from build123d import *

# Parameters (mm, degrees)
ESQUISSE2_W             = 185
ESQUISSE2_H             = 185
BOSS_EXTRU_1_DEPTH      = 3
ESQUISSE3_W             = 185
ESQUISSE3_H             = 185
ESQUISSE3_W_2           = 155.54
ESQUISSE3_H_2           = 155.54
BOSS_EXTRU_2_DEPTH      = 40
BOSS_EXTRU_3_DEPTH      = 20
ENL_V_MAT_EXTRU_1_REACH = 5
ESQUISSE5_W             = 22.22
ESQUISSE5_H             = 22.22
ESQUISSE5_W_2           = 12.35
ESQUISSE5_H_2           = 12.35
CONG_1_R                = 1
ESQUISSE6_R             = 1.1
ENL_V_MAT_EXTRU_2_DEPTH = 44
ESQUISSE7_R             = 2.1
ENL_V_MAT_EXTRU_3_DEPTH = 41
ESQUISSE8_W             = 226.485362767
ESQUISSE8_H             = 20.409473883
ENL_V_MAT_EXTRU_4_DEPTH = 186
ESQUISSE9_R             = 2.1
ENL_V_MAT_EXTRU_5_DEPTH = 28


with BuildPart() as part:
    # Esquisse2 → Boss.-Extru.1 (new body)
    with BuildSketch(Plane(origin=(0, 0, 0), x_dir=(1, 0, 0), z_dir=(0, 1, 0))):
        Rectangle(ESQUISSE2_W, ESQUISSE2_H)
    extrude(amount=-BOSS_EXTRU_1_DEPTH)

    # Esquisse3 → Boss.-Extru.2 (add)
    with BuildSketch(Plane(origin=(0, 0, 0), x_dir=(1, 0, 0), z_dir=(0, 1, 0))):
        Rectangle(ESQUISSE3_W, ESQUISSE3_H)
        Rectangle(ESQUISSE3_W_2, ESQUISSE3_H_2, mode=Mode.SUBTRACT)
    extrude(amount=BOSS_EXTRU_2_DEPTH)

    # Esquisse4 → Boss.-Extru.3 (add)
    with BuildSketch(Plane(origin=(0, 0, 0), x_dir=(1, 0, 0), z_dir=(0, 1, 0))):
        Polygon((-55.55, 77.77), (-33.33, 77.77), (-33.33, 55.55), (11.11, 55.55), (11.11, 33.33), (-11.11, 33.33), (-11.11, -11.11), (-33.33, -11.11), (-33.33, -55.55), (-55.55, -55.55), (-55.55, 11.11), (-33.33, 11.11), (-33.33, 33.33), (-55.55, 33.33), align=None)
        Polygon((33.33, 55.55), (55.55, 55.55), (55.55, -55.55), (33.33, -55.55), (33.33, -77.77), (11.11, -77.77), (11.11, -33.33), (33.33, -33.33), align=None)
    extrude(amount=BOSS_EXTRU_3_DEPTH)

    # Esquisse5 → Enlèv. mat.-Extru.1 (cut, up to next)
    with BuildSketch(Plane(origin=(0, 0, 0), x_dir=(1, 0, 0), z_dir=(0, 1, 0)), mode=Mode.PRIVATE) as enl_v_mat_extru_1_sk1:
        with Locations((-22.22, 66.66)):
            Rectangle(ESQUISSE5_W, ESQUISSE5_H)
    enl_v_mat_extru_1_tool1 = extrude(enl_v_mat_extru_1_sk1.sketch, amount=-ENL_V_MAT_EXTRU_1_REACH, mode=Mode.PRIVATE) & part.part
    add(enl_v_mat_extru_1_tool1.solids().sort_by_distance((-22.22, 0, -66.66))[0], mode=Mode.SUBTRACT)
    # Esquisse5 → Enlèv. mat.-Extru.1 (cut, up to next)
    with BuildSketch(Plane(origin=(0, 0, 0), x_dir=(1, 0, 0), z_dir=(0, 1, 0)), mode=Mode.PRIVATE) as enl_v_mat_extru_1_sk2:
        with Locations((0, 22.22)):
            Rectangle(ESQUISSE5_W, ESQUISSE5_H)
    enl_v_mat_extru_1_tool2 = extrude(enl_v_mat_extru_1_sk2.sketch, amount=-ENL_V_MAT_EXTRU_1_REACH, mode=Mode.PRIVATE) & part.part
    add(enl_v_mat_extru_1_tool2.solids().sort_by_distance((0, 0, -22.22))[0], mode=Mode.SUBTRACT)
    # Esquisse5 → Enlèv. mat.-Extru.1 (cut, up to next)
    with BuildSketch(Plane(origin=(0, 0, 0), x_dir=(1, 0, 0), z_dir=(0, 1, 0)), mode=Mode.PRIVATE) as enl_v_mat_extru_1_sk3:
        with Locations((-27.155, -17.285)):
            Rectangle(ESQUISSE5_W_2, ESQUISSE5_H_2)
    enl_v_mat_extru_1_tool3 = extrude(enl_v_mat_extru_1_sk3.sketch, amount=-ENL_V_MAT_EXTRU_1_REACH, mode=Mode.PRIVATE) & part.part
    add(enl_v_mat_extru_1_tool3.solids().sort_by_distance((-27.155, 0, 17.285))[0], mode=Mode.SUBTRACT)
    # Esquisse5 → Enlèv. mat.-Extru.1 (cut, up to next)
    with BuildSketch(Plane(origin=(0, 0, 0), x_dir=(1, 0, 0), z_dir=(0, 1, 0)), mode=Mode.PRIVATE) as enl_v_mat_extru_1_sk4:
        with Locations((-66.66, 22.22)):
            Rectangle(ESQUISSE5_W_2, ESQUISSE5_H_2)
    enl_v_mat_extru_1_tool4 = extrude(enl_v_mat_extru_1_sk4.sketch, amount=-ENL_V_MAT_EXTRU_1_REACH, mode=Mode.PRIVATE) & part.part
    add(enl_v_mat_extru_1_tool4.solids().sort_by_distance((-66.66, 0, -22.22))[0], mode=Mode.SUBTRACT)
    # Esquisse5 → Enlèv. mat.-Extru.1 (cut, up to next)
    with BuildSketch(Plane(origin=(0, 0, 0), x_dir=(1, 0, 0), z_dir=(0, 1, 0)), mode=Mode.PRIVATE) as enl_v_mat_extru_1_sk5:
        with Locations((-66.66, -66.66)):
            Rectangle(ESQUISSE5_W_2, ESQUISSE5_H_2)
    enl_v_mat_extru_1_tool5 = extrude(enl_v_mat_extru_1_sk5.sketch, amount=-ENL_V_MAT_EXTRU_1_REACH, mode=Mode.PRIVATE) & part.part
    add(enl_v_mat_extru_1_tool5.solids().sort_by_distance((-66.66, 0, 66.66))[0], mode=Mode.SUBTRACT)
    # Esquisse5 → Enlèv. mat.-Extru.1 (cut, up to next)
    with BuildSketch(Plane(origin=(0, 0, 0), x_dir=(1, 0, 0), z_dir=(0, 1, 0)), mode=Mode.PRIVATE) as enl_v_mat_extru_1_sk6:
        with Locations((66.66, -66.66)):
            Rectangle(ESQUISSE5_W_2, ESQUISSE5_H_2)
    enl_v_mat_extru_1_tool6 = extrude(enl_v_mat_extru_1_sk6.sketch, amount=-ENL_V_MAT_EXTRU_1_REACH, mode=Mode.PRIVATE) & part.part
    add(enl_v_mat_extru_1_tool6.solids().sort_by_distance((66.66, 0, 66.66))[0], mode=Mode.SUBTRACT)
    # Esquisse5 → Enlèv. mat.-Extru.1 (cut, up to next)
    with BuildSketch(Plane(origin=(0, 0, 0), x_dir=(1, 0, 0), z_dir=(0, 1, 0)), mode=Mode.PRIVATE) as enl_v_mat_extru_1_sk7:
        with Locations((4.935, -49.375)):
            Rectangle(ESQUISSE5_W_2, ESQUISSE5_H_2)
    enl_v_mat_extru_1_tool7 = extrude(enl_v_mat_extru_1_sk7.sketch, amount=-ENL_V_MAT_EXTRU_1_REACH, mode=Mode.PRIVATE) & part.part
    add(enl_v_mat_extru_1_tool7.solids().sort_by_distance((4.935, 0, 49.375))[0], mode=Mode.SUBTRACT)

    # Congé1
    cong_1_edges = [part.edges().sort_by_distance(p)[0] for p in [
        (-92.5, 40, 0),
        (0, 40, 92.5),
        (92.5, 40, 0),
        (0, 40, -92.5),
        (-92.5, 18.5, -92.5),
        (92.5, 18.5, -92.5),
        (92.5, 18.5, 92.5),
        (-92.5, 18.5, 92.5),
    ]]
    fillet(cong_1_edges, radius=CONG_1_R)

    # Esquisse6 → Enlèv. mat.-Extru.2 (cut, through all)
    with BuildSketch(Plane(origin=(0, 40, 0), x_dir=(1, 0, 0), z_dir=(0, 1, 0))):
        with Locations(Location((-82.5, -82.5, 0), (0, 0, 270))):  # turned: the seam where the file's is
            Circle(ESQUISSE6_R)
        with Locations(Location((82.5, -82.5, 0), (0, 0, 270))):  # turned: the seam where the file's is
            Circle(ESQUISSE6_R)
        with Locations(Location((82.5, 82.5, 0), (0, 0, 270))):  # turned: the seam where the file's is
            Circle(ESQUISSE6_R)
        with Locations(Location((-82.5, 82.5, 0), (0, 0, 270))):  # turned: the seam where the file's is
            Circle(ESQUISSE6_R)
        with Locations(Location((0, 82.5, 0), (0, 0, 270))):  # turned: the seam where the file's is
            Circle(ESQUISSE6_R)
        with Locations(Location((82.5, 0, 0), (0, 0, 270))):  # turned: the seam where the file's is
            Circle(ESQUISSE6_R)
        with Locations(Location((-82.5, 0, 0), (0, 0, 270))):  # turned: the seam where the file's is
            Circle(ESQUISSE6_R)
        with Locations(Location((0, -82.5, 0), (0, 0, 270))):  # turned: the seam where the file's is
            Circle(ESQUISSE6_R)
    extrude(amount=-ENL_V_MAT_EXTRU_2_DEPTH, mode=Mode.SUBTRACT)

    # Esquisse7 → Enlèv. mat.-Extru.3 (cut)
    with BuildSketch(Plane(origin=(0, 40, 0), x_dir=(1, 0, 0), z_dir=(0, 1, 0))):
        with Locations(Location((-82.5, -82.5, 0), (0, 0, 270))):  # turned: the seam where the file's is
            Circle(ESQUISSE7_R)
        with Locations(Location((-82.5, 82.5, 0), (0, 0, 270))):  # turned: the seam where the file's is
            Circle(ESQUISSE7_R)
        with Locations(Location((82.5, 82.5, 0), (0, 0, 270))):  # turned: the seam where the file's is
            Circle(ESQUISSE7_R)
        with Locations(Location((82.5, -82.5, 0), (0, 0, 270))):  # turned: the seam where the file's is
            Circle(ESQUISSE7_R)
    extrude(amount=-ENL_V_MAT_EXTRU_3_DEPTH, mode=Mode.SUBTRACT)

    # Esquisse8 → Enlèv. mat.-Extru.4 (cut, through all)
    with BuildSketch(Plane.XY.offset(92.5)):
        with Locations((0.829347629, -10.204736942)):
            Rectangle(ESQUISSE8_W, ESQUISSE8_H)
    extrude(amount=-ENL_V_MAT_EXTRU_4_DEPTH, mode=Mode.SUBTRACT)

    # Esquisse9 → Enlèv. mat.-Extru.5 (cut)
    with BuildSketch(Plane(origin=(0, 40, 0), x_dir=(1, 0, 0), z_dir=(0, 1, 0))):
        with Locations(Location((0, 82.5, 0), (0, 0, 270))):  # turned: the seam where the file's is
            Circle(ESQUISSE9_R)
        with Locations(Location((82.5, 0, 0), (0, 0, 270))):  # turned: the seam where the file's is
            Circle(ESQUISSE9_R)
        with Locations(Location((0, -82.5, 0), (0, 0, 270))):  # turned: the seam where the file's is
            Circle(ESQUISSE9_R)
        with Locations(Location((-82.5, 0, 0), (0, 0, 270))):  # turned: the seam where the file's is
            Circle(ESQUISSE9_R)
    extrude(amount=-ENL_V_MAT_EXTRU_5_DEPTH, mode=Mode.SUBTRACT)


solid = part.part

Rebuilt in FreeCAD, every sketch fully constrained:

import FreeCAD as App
import Part
import Sketcher

V = App.Vector


def edges_at(feature, points):
    """Names of the edges that pass closest to the given points."""
    edges = feature.Shape.Edges
    near = lambda p: min(range(len(edges)), key=lambda i: edges[i].distToShape(Part.Vertex(*p))[0])
    return sorted({f"Edge{near(p) + 1}" for p in points})

doc = App.newDocument("Part")
body = doc.addObject("PartDesign::Body", "Body")

# Sketch on XZ plane
sketch1 = body.newObject("Sketcher::SketchObject", "Sketch")
sketch1.AttachmentSupport = (doc.getObject("XZ_Plane"), [""])
sketch1.MapMode = "FlatFace"
sketch1.addGeometry([
    Part.LineSegment(V(-92, -92, 0), V(-92, 92, 0)),
    Part.LineSegment(V(-92, 92, 0), V(92, 92, 0)),
    Part.LineSegment(V(92, 92, 0), V(92, -92, 0)),
    Part.LineSegment(V(92, -92, 0), V(-92, -92, 0)),
], False)
sketch1.addConstraint([
    Sketcher.Constraint("Coincident", 0, 2, 1, 1),
    Sketcher.Constraint("Coincident", 1, 2, 2, 1),
    Sketcher.Constraint("Coincident", 2, 2, 3, 1),
    Sketcher.Constraint("Coincident", 3, 2, 0, 1),
    Sketcher.Constraint("Vertical", 0),
    Sketcher.Constraint("Horizontal", 1),
    Sketcher.Constraint("Vertical", 2),
    Sketcher.Constraint("Horizontal", 3),
    Sketcher.Constraint("Symmetric", 0, 2, 2, 2, -1, 1),
    Sketcher.Constraint("Equal", 3, 0),
    Sketcher.Constraint("DistanceX", 1, 1, 1, 2, 185.0),
])
pad1 = body.newObject("PartDesign::Pad", "Pad")
pad1.Profile = sketch1
pad1.Length = 3

# Sketch on XZ plane
sketch2 = body.newObject("Sketcher::SketchObject", "Sketch001")
sketch2.AttachmentSupport = (doc.getObject("XZ_Plane"), [""])
sketch2.MapMode = "FlatFace"
sketch2.addGeometry([
    Part.LineSegment(V(-92, -92, 0), V(-92, 92, 0)),  # 0
    Part.LineSegment(V(-92, 92, 0), V(92, 92, 0)),  # 1
    Part.LineSegment(V(92, 92, 0), V(92, -92, 0)),  # 2
    Part.LineSegment(V(92, -92, 0), V(-92, -92, 0)),  # 3
    Part.LineSegment(V(78, 78, 0), V(-78, 78, 0)),  # 4
    Part.LineSegment(V(-78, 78, 0), V(-78, -78, 0)),  # 5
    Part.LineSegment(V(-78, -78, 0), V(78, -78, 0)),  # 6
    Part.LineSegment(V(78, -78, 0), V(78, 78, 0)),  # 7
], False)
sketch2.addConstraint([
    Sketcher.Constraint("Coincident", 0, 2, 1, 1),
    Sketcher.Constraint("Coincident", 1, 2, 2, 1),
    Sketcher.Constraint("Coincident", 2, 2, 3, 1),
    Sketcher.Constraint("Coincident", 3, 2, 0, 1),
    Sketcher.Constraint("Coincident", 4, 2, 5, 1),
    Sketcher.Constraint("Coincident", 5, 2, 6, 1),
    Sketcher.Constraint("Coincident", 6, 2, 7, 1),
    Sketcher.Constraint("Coincident", 7, 2, 4, 1),
    Sketcher.Constraint("Vertical", 0),
    Sketcher.Constraint("Horizontal", 1),
    Sketcher.Constraint("Vertical", 2),
    Sketcher.Constraint("Horizontal", 3),
    Sketcher.Constraint("Horizontal", 4),
    Sketcher.Constraint("Vertical", 5),
    Sketcher.Constraint("Horizontal", 6),
    Sketcher.Constraint("Vertical", 7),
    Sketcher.Constraint("Symmetric", 0, 2, 2, 2, -1, 1),
    Sketcher.Constraint("Symmetric", 4, 2, 6, 2, -1, 1),
    Sketcher.Constraint("Equal", 3, 0),
    Sketcher.Constraint("Equal", 6, 5),
    Sketcher.Constraint("DistanceX", 1, 1, 1, 2, 185.0),
    Sketcher.Constraint("DistanceX", 4, 2, 4, 1, 155.54),
])
pad2 = body.newObject("PartDesign::Pad", "Pad001")
pad2.Profile = sketch2
pad2.Length = 40
pad2.Reversed = True

# Sketch on XZ plane
sketch3 = body.newObject("Sketcher::SketchObject", "Sketch002")
sketch3.AttachmentSupport = (doc.getObject("XZ_Plane"), [""])
sketch3.MapMode = "FlatFace"
sketch3.addGeometry([
    Part.LineSegment(V(-33, -78, 0), V(-56, -78, 0)),  # 0
    Part.LineSegment(V(-56, -78, 0), V(-56, -33, 0)),  # 1
    Part.LineSegment(V(-56, -33, 0), V(-33, -33, 0)),  # 2
    Part.LineSegment(V(-33, -33, 0), V(-33, -11, 0)),  # 3
    Part.LineSegment(V(-33, -11, 0), V(-56, -11, 0)),  # 4
    Part.LineSegment(V(-56, -11, 0), V(-56, 56, 0)),  # 5
    Part.LineSegment(V(-56, 56, 0), V(-33, 56, 0)),  # 6
    Part.LineSegment(V(-33, 56, 0), V(-33, 11, 0)),  # 7
    Part.LineSegment(V(-33, 11, 0), V(-11, 11, 0)),  # 8
    Part.LineSegment(V(-11, 11, 0), V(-11, -33, 0)),  # 9
    Part.LineSegment(V(-11, -33, 0), V(11, -33, 0)),  # 10
    Part.LineSegment(V(11, -33, 0), V(11, -56, 0)),  # 11
    Part.LineSegment(V(11, -56, 0), V(-33, -56, 0)),  # 12
    Part.LineSegment(V(-33, -56, 0), V(-33, -78, 0)),  # 13
    Part.LineSegment(V(56, -56, 0), V(33, -56, 0)),  # 14
    Part.LineSegment(V(33, -56, 0), V(33, 33, 0)),  # 15
    Part.LineSegment(V(33, 33, 0), V(11, 33, 0)),  # 16
    Part.LineSegment(V(11, 33, 0), V(11, 78, 0)),  # 17
    Part.LineSegment(V(11, 78, 0), V(33, 78, 0)),  # 18
    Part.LineSegment(V(33, 78, 0), V(33, 56, 0)),  # 19
    Part.LineSegment(V(33, 56, 0), V(56, 56, 0)),  # 20
    Part.LineSegment(V(56, 56, 0), V(56, -56, 0)),  # 21
], False)
sketch3.addConstraint([
    Sketcher.Constraint("Coincident", 0, 2, 1, 1),
    Sketcher.Constraint("Coincident", 1, 2, 2, 1),
    Sketcher.Constraint("Coincident", 2, 2, 3, 1),
    Sketcher.Constraint("Coincident", 3, 2, 4, 1),
    Sketcher.Constraint("Coincident", 4, 2, 5, 1),
    Sketcher.Constraint("Coincident", 5, 2, 6, 1),
    Sketcher.Constraint("Coincident", 6, 2, 7, 1),
    Sketcher.Constraint("Coincident", 7, 2, 8, 1),
    Sketcher.Constraint("Coincident", 8, 2, 9, 1),
    Sketcher.Constraint("Coincident", 9, 2, 10, 1),
    Sketcher.Constraint("Coincident", 10, 2, 11, 1),
    Sketcher.Constraint("Coincident", 11, 2, 12, 1),
    Sketcher.Constraint("Coincident", 12, 2, 13, 1),
    Sketcher.Constraint("Coincident", 13, 2, 0, 1),
    Sketcher.Constraint("Coincident", 14, 2, 15, 1),
    Sketcher.Constraint("Coincident", 15, 2, 16, 1),
    Sketcher.Constraint("Coincident", 16, 2, 17, 1),
    Sketcher.Constraint("Coincident", 17, 2, 18, 1),
    Sketcher.Constraint("Coincident", 18, 2, 19, 1),
    Sketcher.Constraint("Coincident", 19, 2, 20, 1),
    Sketcher.Constraint("Coincident", 20, 2, 21, 1),
    Sketcher.Constraint("Coincident", 21, 2, 14, 1),
    Sketcher.Constraint("Horizontal", 0),
    Sketcher.Constraint("Vertical", 1),
    Sketcher.Constraint("Horizontal", 2),
    Sketcher.Constraint("Vertical", 3),
    Sketcher.Constraint("Horizontal", 4),
    Sketcher.Constraint("Vertical", 5),
    Sketcher.Constraint("Horizontal", 6),
    Sketcher.Constraint("Vertical", 7),
    Sketcher.Constraint("Horizontal", 8),
    Sketcher.Constraint("Vertical", 9),
    Sketcher.Constraint("Horizontal", 10),
    Sketcher.Constraint("Vertical", 11),
    Sketcher.Constraint("Horizontal", 12),
    Sketcher.Constraint("Vertical", 13),
    Sketcher.Constraint("Horizontal", 14),
    Sketcher.Constraint("Vertical", 15),
    Sketcher.Constraint("Horizontal", 16),
    Sketcher.Constraint("Vertical", 17),
    Sketcher.Constraint("Horizontal", 18),
    Sketcher.Constraint("Vertical", 19),
    Sketcher.Constraint("Horizontal", 20),
    Sketcher.Constraint("Vertical", 21),
    Sketcher.Constraint("Symmetric", 6, 2, 14, 2, -1, 1),
    Sketcher.Constraint("Symmetric", 2, 2, 15, 2, -1, 1),
    Sketcher.Constraint("Symmetric", 9, 2, 16, 2, -1, 1),
    Sketcher.Constraint("Symmetric", 13, 2, 18, 2, -1, 1),
    Sketcher.Constraint("Symmetric", 12, 2, 14, 2, -2),
    Sketcher.Constraint("Symmetric", 5, 2, 20, 2, -2),
    Sketcher.Constraint("Vertical", 1, 2, 4, 2),
    Sketcher.Constraint("Vertical", 11, 2, 16, 2),
    Sketcher.Constraint("Equal", 6, 8),
    Sketcher.Constraint("Equal", 8, 10),
    Sketcher.Constraint("Equal", 12, 1),
    Sketcher.Constraint("Equal", 20, 3),
    Sketcher.Constraint("Equal", 1, 7),
    Sketcher.Constraint("Equal", 7, 9),
    Sketcher.Constraint("Equal", 3, 11),
    Sketcher.Constraint("DistanceY", 21, 2, 21, 1, 111.1),
])
pad3 = body.newObject("PartDesign::Pad", "Pad002")
pad3.Profile = sketch3
pad3.Length = 20
pad3.Reversed = True

# Sketch on XZ plane
sketch4 = body.newObject("Sketcher::SketchObject", "Sketch003")
sketch4.AttachmentSupport = (doc.getObject("XZ_Plane"), [""])
sketch4.MapMode = "FlatFace"
sketch4.addGeometry([
    Part.LineSegment(V(-33, -78, 0), V(-33, -56, 0)),
    Part.LineSegment(V(-33, -56, 0), V(-11, -56, 0)),
    Part.LineSegment(V(-11, -56, 0), V(-11, -78, 0)),
    Part.LineSegment(V(-11, -78, 0), V(-33, -78, 0)),
], False)
sketch4.addConstraint([
    Sketcher.Constraint("Coincident", 0, 2, 1, 1),
    Sketcher.Constraint("Coincident", 1, 2, 2, 1),
    Sketcher.Constraint("Coincident", 2, 2, 3, 1),
    Sketcher.Constraint("Coincident", 3, 2, 0, 1),
    Sketcher.Constraint("Vertical", 0),
    Sketcher.Constraint("Horizontal", 1),
    Sketcher.Constraint("Vertical", 2),
    Sketcher.Constraint("Horizontal", 3),
    Sketcher.Constraint("Equal", 3, 0),
    Sketcher.Constraint("DistanceX", 1, 1, 1, 2, 22.22),
    Sketcher.Constraint("DistanceX", 0, 2, -1, 1, 33.33),
    Sketcher.Constraint("DistanceY", 0, 2, -1, 1, 55.55),
])
pocket1 = body.newObject("PartDesign::Pocket", "Pocket")
pocket1.Profile = sketch4
pocket1.Type = "UpToFirst"
pocket1.Reversed = True

# Sketch on XZ plane
sketch5 = body.newObject("Sketcher::SketchObject", "Sketch004")
sketch5.AttachmentSupport = (doc.getObject("XZ_Plane"), [""])
sketch5.MapMode = "FlatFace"
sketch5.addGeometry([
    Part.LineSegment(V(-11, -33, 0), V(-11, -11, 0)),
    Part.LineSegment(V(-11, -11, 0), V(11, -11, 0)),
    Part.LineSegment(V(11, -11, 0), V(11, -33, 0)),
    Part.LineSegment(V(11, -33, 0), V(-11, -33, 0)),
], False)
sketch5.addConstraint([
    Sketcher.Constraint("Coincident", 0, 2, 1, 1),
    Sketcher.Constraint("Coincident", 1, 2, 2, 1),
    Sketcher.Constraint("Coincident", 2, 2, 3, 1),
    Sketcher.Constraint("Coincident", 3, 2, 0, 1),
    Sketcher.Constraint("Vertical", 0),
    Sketcher.Constraint("Horizontal", 1),
    Sketcher.Constraint("Vertical", 2),
    Sketcher.Constraint("Horizontal", 3),
    Sketcher.Constraint("Equal", 3, 0),
    Sketcher.Constraint("DistanceX", 1, 1, 1, 2, 22.22),
    Sketcher.Constraint("DistanceX", 0, 2, -1, 1, 11.11),
    Sketcher.Constraint("DistanceY", 0, 2, -1, 1, 11.11),
])
pocket2 = body.newObject("PartDesign::Pocket", "Pocket001")
pocket2.Profile = sketch5
pocket2.Type = "UpToFirst"
pocket2.Reversed = True

# Sketch on XZ plane
sketch6 = body.newObject("Sketcher::SketchObject", "Sketch005")
sketch6.AttachmentSupport = (doc.getObject("XZ_Plane"), [""])
sketch6.MapMode = "FlatFace"
sketch6.addGeometry([
    Part.LineSegment(V(-33, 11, 0), V(-33, 23, 0)),
    Part.LineSegment(V(-33, 23, 0), V(-21, 23, 0)),
    Part.LineSegment(V(-21, 23, 0), V(-21, 11, 0)),
    Part.LineSegment(V(-21, 11, 0), V(-33, 11, 0)),
], False)
sketch6.addConstraint([
    Sketcher.Constraint("Coincident", 0, 2, 1, 1),
    Sketcher.Constraint("Coincident", 1, 2, 2, 1),
    Sketcher.Constraint("Coincident", 2, 2, 3, 1),
    Sketcher.Constraint("Coincident", 3, 2, 0, 1),
    Sketcher.Constraint("Vertical", 0),
    Sketcher.Constraint("Horizontal", 1),
    Sketcher.Constraint("Vertical", 2),
    Sketcher.Constraint("Horizontal", 3),
    Sketcher.Constraint("Equal", 3, 0),
    Sketcher.Constraint("DistanceX", 1, 1, 1, 2, 12.35),
    Sketcher.Constraint("DistanceX", 0, 2, -1, 1, 33.33),
    Sketcher.Constraint("DistanceY", -1, 1, 0, 2, 23.46),
])
pocket3 = body.newObject("PartDesign::Pocket", "Pocket002")
pocket3.Profile = sketch6
pocket3.Type = "UpToFirst"
pocket3.Reversed = True

# Sketch on XZ plane
sketch7 = body.newObject("Sketcher::SketchObject", "Sketch006")
sketch7.AttachmentSupport = (doc.getObject("XZ_Plane"), [""])
sketch7.MapMode = "FlatFace"
sketch7.addGeometry([
    Part.LineSegment(V(-73, -28, 0), V(-73, -16, 0)),
    Part.LineSegment(V(-73, -16, 0), V(-60, -16, 0)),
    Part.LineSegment(V(-60, -16, 0), V(-60, -28, 0)),
    Part.LineSegment(V(-60, -28, 0), V(-73, -28, 0)),
], False)
sketch7.addConstraint([
    Sketcher.Constraint("Coincident", 0, 2, 1, 1),
    Sketcher.Constraint("Coincident", 1, 2, 2, 1),
    Sketcher.Constraint("Coincident", 2, 2, 3, 1),
    Sketcher.Constraint("Coincident", 3, 2, 0, 1),
    Sketcher.Constraint("Vertical", 0),
    Sketcher.Constraint("Horizontal", 1),
    Sketcher.Constraint("Vertical", 2),
    Sketcher.Constraint("Horizontal", 3),
    Sketcher.Constraint("Equal", 3, 0),
    Sketcher.Constraint("DistanceX", 1, 1, 1, 2, 12.35),
    Sketcher.Constraint("DistanceX", 0, 2, -1, 1, 72.835),
    Sketcher.Constraint("DistanceY", 0, 2, -1, 1, 16.045),
])
pocket4 = body.newObject("PartDesign::Pocket", "Pocket003")
pocket4.Profile = sketch7
pocket4.Type = "UpToFirst"
pocket4.Reversed = True

# Sketch on XZ plane
sketch8 = body.newObject("Sketcher::SketchObject", "Sketch007")
sketch8.AttachmentSupport = (doc.getObject("XZ_Plane"), [""])
sketch8.MapMode = "FlatFace"
sketch8.addGeometry([
    Part.LineSegment(V(-73, 60, 0), V(-73, 73, 0)),
    Part.LineSegment(V(-73, 73, 0), V(-60, 73, 0)),
    Part.LineSegment(V(-60, 73, 0), V(-60, 60, 0)),
    Part.LineSegment(V(-60, 60, 0), V(-73, 60, 0)),
], False)
sketch8.addConstraint([
    Sketcher.Constraint("Coincident", 0, 2, 1, 1),
    Sketcher.Constraint("Coincident", 1, 2, 2, 1),
    Sketcher.Constraint("Coincident", 2, 2, 3, 1),
    Sketcher.Constraint("Coincident", 3, 2, 0, 1),
    Sketcher.Constraint("Vertical", 0),
    Sketcher.Constraint("Horizontal", 1),
    Sketcher.Constraint("Vertical", 2),
    Sketcher.Constraint("Horizontal", 3),
    Sketcher.Constraint("Equal", 3, 0),
    Sketcher.Constraint("DistanceX", 1, 1, 1, 2, 12.35),
    Sketcher.Constraint("DistanceX", 0, 2, -1, 1, 72.835),
    Sketcher.Constraint("DistanceY", -1, 1, 0, 2, 72.835),
])
pocket5 = body.newObject("PartDesign::Pocket", "Pocket004")
pocket5.Profile = sketch8
pocket5.Type = "UpToFirst"
pocket5.Reversed = True

# Sketch on XZ plane
sketch9 = body.newObject("Sketcher::SketchObject", "Sketch008")
sketch9.AttachmentSupport = (doc.getObject("XZ_Plane"), [""])
sketch9.MapMode = "FlatFace"
sketch9.addGeometry([
    Part.LineSegment(V(60, 60, 0), V(60, 73, 0)),
    Part.LineSegment(V(60, 73, 0), V(73, 73, 0)),
    Part.LineSegment(V(73, 73, 0), V(73, 60, 0)),
    Part.LineSegment(V(73, 60, 0), V(60, 60, 0)),
], False)
sketch9.addConstraint([
    Sketcher.Constraint("Coincident", 0, 2, 1, 1),
    Sketcher.Constraint("Coincident", 1, 2, 2, 1),
    Sketcher.Constraint("Coincident", 2, 2, 3, 1),
    Sketcher.Constraint("Coincident", 3, 2, 0, 1),
    Sketcher.Constraint("Vertical", 0),
    Sketcher.Constraint("Horizontal", 1),
    Sketcher.Constraint("Vertical", 2),
    Sketcher.Constraint("Horizontal", 3),
    Sketcher.Constraint("Equal", 3, 0),
    Sketcher.Constraint("DistanceX", 1, 1, 1, 2, 12.35),
    Sketcher.Constraint("DistanceX", -1, 1, 0, 2, 60.485),
    Sketcher.Constraint("DistanceY", -1, 1, 0, 2, 72.835),
])
pocket6 = body.newObject("PartDesign::Pocket", "Pocket005")
pocket6.Profile = sketch9
pocket6.Type = "UpToFirst"
pocket6.Reversed = True

# Sketch on XZ plane
sketch10 = body.newObject("Sketcher::SketchObject", "Sketch009")
sketch10.AttachmentSupport = (doc.getObject("XZ_Plane"), [""])
sketch10.MapMode = "FlatFace"
sketch10.addGeometry([
    Part.LineSegment(V(-1, 43, 0), V(-1, 56, 0)),
    Part.LineSegment(V(-1, 56, 0), V(11, 56, 0)),
    Part.LineSegment(V(11, 56, 0), V(11, 43, 0)),
    Part.LineSegment(V(11, 43, 0), V(-1, 43, 0)),
], False)
sketch10.addConstraint([
    Sketcher.Constraint("Coincident", 0, 2, 1, 1),
    Sketcher.Constraint("Coincident", 1, 2, 2, 1),
    Sketcher.Constraint("Coincident", 2, 2, 3, 1),
    Sketcher.Constraint("Coincident", 3, 2, 0, 1),
    Sketcher.Constraint("Vertical", 0),
    Sketcher.Constraint("Horizontal", 1),
    Sketcher.Constraint("Vertical", 2),
    Sketcher.Constraint("Horizontal", 3),
    Sketcher.Constraint("Equal", 3, 0),
    Sketcher.Constraint("DistanceX", 1, 1, 1, 2, 12.35),
    Sketcher.Constraint("DistanceY", -1, 1, 2, 2, 43.2),
    Sketcher.Constraint("DistanceX", 0, 2, -1, 1, 1.24),
])
pocket7 = body.newObject("PartDesign::Pocket", "Pocket006")
pocket7.Profile = sketch10
pocket7.Type = "UpToFirst"
pocket7.Reversed = True
doc.recompute()

fillet = body.newObject("PartDesign::Fillet", "Fillet")
fillet.Base = (pocket7, edges_at(pocket7, [
    (-92.5, 40, 0),
    (0, 40, 92.5),
    (92.5, 40, 0),
    (0, 40, -92.5),
    (-92.5, 18.5, -92.5),
    (92.5, 18.5, -92.5),
    (92.5, 18.5, 92.5),
    (-92.5, 18.5, 92.5),
]))
fillet.Radius = 1

# Sketch on XZ plane
sketch11 = body.newObject("Sketcher::SketchObject", "Sketch010")
sketch11.AttachmentSupport = (doc.getObject("XZ_Plane"), [""])
sketch11.MapMode = "FlatFace"
sketch11.AttachmentOffset = App.Placement(V(0, 0, -40), App.Rotation())
sketch11.addGeometry([
    Part.Circle(V(-82.5, 82.5, 0), V(0, 0, 1), 1.1),  # 0
    Part.Circle(V(82.5, 82.5, 0), V(0, 0, 1), 1.1),  # 1
    Part.Circle(V(82.5, -82.5, 0), V(0, 0, 1), 1.1),  # 2
    Part.Circle(V(-82.5, -82.5, 0), V(0, 0, 1), 1.1),  # 3
    Part.Circle(V(0, -82.5, 0), V(0, 0, 1), 1.1),  # 4
    Part.Circle(V(82.5, 0, 0), V(0, 0, 1), 1.1),  # 5
    Part.Circle(V(-82.5, 0, 0), V(0, 0, 1), 1.1),  # 6
    Part.Circle(V(0, 82.5, 0), V(0, 0, 1), 1.1),  # 7
], False)
sketch11.addConstraint([
    Sketcher.Constraint("Equal", 0, 1),
    Sketcher.Constraint("Equal", 1, 2),
    Sketcher.Constraint("Equal", 2, 3),
    Sketcher.Constraint("Equal", 3, 4),
    Sketcher.Constraint("Equal", 4, 5),
    Sketcher.Constraint("Equal", 5, 6),
    Sketcher.Constraint("Equal", 6, 7),
    Sketcher.Constraint("Symmetric", 0, 3, 2, 3, -1, 1),
    Sketcher.Constraint("Symmetric", 1, 3, 3, 3, -1, 1),
    Sketcher.Constraint("Symmetric", 5, 3, 6, 3, -1, 1),
    Sketcher.Constraint("Symmetric", 4, 3, 7, 3, -1, 1),
    Sketcher.Constraint("Symmetric", 0, 3, 1, 3, -2),
    Sketcher.Constraint("PointOnObject", 4, 3, -2),
    Sketcher.Constraint("PointOnObject", 5, 3, -1),
    Sketcher.Constraint("Horizontal", 3, 3, 4, 3),
    Sketcher.Constraint("Vertical", 2, 3, 5, 3),
    Sketcher.Constraint("Diameter", 0, 2.2),
    Sketcher.Constraint("DistanceX", 0, 3, 1, 3, 165.0),
    Sketcher.Constraint("DistanceY", 2, 3, 1, 3, 165.0),
])
pocket8 = body.newObject("PartDesign::Pocket", "Pocket007")
pocket8.Profile = sketch11
pocket8.Type = "ThroughAll"
pocket8.Reversed = True

# Sketch on XZ plane
sketch12 = body.newObject("Sketcher::SketchObject", "Sketch011")
sketch12.AttachmentSupport = (doc.getObject("XZ_Plane"), [""])
sketch12.MapMode = "FlatFace"
sketch12.AttachmentOffset = App.Placement(V(0, 0, -40), App.Rotation())
sketch12.addGeometry([
    Part.Circle(V(-82.5, 82.5, 0), V(0, 0, 1), 2.1),
    Part.Circle(V(-82.5, -82.5, 0), V(0, 0, 1), 2.1),
    Part.Circle(V(82.5, -82.5, 0), V(0, 0, 1), 2.1),
    Part.Circle(V(82.5, 82.5, 0), V(0, 0, 1), 2.1),
], False)
sketch12.addConstraint([
    Sketcher.Constraint("Equal", 0, 1),
    Sketcher.Constraint("Equal", 1, 2),
    Sketcher.Constraint("Equal", 2, 3),
    Sketcher.Constraint("Symmetric", 0, 3, 2, 3, -1, 1),
    Sketcher.Constraint("Symmetric", 1, 3, 3, 3, -1, 1),
    Sketcher.Constraint("Symmetric", 1, 3, 2, 3, -2),
    Sketcher.Constraint("Diameter", 0, 4.2),
    Sketcher.Constraint("DistanceY", 1, 3, 0, 3, 165.0),
    Sketcher.Constraint("DistanceX", 1, 3, 2, 3, 165.0),
])
pocket9 = body.newObject("PartDesign::Pocket", "Pocket008")
pocket9.Profile = sketch12
pocket9.Length = 41
pocket9.Reversed = True

# Sketch on XY plane
sketch13 = body.newObject("Sketcher::SketchObject", "Sketch012")
sketch13.AttachmentSupport = (doc.getObject("XY_Plane"), [""])
sketch13.MapMode = "FlatFace"
sketch13.AttachmentOffset = App.Placement(V(0, 0, 92.5), App.Rotation())
sketch13.addGeometry([
    Part.LineSegment(V(-112, 0, 0), V(-112, -20, 0)),
    Part.LineSegment(V(-112, -20, 0), V(114, -20, 0)),
    Part.LineSegment(V(114, -20, 0), V(114, 0, 0)),
    Part.LineSegment(V(114, 0, 0), V(-112, 0, 0)),
], False)
sketch13.addConstraint([
    Sketcher.Constraint("Coincident", 0, 2, 1, 1),
    Sketcher.Constraint("Coincident", 1, 2, 2, 1),
    Sketcher.Constraint("Coincident", 2, 2, 3, 1),
    Sketcher.Constraint("Coincident", 3, 2, 0, 1),
    Sketcher.Constraint("Vertical", 0),
    Sketcher.Constraint("Horizontal", 1),
    Sketcher.Constraint("Vertical", 2),
    Sketcher.Constraint("Horizontal", 3),
    Sketcher.Constraint("PointOnObject", 2, 2, -1),
    Sketcher.Constraint("DistanceX", 1, 1, 1, 2, 226.485363),
    Sketcher.Constraint("DistanceY", 0, 2, 0, 1, 20.409474),
    Sketcher.Constraint("DistanceX", -1, 1, 1, 2, 114.072029),
])
pocket10 = body.newObject("PartDesign::Pocket", "Pocket009")
pocket10.Profile = sketch13
pocket10.Type = "ThroughAll"

# Sketch on XZ plane
sketch14 = body.newObject("Sketcher::SketchObject", "Sketch013")
sketch14.AttachmentSupport = (doc.getObject("XZ_Plane"), [""])
sketch14.MapMode = "FlatFace"
sketch14.AttachmentOffset = App.Placement(V(0, 0, -40), App.Rotation())
sketch14.addGeometry([
    Part.Circle(V(0, -82.5, 0), V(0, 0, 1), 2.1),
    Part.Circle(V(82.5, 0, 0), V(0, 0, 1), 2.1),
    Part.Circle(V(0, 82.5, 0), V(0, 0, 1), 2.1),
    Part.Circle(V(-82.5, 0, 0), V(0, 0, 1), 2.1),
], False)
sketch14.addConstraint([
    Sketcher.Constraint("Equal", 0, 1),
    Sketcher.Constraint("Equal", 1, 2),
    Sketcher.Constraint("Equal", 2, 3),
    Sketcher.Constraint("Symmetric", 0, 3, 2, 3, -1, 1),
    Sketcher.Constraint("Symmetric", 1, 3, 3, 3, -1, 1),
    Sketcher.Constraint("PointOnObject", 0, 3, -2),
    Sketcher.Constraint("PointOnObject", 1, 3, -1),
    Sketcher.Constraint("Diameter", 0, 4.2),
    Sketcher.Constraint("DistanceY", 0, 3, 2, 3, 165.0),
    Sketcher.Constraint("DistanceX", 3, 3, 1, 3, 165.0),
])
pocket11 = body.newObject("PartDesign::Pocket", "Pocket010")
pocket11.Profile = sketch14
pocket11.Length = 28
pocket11.Reversed = True

doc.recompute()
